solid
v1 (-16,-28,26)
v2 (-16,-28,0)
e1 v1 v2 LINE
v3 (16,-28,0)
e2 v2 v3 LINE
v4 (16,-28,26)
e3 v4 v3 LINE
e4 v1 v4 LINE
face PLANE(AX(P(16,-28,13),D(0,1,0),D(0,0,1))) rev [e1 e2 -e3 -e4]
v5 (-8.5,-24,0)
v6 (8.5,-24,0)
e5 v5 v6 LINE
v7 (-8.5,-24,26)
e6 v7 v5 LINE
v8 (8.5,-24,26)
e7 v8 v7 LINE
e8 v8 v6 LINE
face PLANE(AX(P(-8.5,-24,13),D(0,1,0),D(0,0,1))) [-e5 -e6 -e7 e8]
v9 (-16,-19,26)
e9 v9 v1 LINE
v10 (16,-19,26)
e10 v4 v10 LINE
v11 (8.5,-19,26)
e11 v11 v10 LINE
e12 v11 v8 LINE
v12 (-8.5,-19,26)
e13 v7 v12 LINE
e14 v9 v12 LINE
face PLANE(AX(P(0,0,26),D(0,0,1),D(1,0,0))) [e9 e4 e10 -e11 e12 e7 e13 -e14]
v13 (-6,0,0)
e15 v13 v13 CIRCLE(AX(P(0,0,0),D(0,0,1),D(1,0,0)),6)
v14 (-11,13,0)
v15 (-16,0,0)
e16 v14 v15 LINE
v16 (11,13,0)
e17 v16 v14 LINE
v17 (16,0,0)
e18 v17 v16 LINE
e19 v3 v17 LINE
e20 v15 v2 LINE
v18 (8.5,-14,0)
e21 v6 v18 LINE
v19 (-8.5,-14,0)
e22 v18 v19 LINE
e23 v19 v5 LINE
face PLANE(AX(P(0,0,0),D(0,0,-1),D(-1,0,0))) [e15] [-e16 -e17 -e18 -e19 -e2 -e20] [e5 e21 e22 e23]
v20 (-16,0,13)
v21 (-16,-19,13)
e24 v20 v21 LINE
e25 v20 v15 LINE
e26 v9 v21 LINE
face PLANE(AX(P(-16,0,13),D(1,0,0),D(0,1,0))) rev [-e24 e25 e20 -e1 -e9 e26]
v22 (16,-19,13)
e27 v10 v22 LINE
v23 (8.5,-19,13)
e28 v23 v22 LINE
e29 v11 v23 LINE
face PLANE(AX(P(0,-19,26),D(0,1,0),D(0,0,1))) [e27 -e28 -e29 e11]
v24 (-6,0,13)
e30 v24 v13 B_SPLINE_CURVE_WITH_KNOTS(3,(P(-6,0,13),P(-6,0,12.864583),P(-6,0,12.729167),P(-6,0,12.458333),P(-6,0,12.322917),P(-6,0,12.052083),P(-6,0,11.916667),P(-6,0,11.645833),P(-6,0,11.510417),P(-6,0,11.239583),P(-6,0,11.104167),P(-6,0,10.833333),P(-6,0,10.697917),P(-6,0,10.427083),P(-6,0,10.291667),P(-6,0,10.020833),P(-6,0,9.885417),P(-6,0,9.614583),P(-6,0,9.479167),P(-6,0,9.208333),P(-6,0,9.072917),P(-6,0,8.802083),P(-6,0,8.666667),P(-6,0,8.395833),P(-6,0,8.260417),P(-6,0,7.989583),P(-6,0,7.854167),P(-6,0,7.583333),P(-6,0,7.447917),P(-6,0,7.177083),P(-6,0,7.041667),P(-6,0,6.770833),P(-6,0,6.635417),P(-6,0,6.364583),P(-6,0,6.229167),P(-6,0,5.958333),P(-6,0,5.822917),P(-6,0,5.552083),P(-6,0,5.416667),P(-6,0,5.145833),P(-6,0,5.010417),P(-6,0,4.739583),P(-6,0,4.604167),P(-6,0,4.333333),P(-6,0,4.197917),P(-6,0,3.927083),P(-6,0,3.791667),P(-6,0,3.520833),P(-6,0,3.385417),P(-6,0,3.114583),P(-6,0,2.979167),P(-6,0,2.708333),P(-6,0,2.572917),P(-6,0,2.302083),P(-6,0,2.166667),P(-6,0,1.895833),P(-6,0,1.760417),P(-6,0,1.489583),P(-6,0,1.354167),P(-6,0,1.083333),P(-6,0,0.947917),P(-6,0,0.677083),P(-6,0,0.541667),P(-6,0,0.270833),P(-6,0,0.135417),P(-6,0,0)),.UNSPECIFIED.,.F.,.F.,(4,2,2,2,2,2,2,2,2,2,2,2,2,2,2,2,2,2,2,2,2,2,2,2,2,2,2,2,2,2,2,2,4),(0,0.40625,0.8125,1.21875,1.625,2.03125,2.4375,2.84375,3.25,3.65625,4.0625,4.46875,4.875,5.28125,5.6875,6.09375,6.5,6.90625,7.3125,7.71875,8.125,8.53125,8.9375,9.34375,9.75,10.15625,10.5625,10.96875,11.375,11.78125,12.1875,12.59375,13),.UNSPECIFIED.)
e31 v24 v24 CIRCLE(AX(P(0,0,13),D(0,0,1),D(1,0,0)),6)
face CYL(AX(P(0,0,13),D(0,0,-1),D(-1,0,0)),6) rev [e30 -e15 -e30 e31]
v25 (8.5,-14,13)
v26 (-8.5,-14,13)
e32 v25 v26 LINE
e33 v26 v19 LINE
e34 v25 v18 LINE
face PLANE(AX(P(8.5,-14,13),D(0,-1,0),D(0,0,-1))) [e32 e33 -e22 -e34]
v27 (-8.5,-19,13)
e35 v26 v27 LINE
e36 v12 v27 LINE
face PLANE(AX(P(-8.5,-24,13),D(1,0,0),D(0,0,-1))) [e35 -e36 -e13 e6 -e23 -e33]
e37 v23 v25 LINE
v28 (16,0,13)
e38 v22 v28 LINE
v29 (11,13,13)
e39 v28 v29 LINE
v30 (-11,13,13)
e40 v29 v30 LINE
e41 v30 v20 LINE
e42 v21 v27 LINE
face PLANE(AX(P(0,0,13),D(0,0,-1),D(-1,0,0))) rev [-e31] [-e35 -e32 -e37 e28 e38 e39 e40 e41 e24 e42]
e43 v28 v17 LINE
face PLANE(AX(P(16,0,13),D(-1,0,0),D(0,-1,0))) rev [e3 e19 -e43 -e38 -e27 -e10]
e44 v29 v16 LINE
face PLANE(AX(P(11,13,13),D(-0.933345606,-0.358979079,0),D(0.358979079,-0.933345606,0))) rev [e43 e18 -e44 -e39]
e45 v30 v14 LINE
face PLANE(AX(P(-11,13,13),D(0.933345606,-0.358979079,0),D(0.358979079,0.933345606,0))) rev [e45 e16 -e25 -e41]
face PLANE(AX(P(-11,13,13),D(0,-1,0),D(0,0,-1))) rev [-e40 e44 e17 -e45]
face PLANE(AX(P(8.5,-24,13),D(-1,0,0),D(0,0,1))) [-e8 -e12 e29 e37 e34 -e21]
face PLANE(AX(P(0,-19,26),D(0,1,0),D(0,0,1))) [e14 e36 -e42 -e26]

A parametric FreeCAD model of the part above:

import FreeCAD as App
import Part
import Sketcher
from FreeCAD import Vector

doc = App.newDocument("Part")
body = doc.addObject("PartDesign::Body", "Body")

# Sketch on XY plane
sketch1 = doc.addObject("Sketcher::SketchObject", "Sketch")
body.addObject(sketch1)
sketch1.AttachmentSupport = (doc.XY_Plane, [""])
sketch1.MapMode = "FlatFace"
sketch1.addGeometry([
    Part.LineSegment(Vector(11, 13, 0), Vector(-11, 13, 0)),  # 0
    Part.LineSegment(Vector(-11, 13, 0), Vector(-16, 0, 0)),  # 1
    Part.LineSegment(Vector(-16, 0, 0), Vector(-16, -28, 0)),  # 2
    Part.LineSegment(Vector(-16, -28, 0), Vector(16, -28, 0)),  # 3
    Part.LineSegment(Vector(16, -28, 0), Vector(16, 0, 0)),  # 4
    Part.LineSegment(Vector(16, 0, 0), Vector(11, 13, 0)),  # 5
    Part.LineSegment(Vector(-8, -24, 0), Vector(-8, -14, 0)),  # 6
    Part.LineSegment(Vector(-8, -14, 0), Vector(8, -14, 0)),  # 7
    Part.LineSegment(Vector(8, -14, 0), Vector(8, -24, 0)),  # 8
    Part.LineSegment(Vector(8, -24, 0), Vector(-8, -24, 0)),  # 9
    Part.Circle(Vector(0, 0, 0), Vector(0, 0, 1), 6),  # 10
], False)
sketch1.addConstraint([
    Sketcher.Constraint("Coincident", 0, 2, 1, 1),
    Sketcher.Constraint("Coincident", 1, 2, 2, 1),
    Sketcher.Constraint("Coincident", 2, 2, 3, 1),
    Sketcher.Constraint("Coincident", 3, 2, 4, 1),
    Sketcher.Constraint("Coincident", 4, 2, 5, 1),
    Sketcher.Constraint("Coincident", 5, 2, 0, 1),
    Sketcher.Constraint("Coincident", 6, 2, 7, 1),
    Sketcher.Constraint("Coincident", 7, 2, 8, 1),
    Sketcher.Constraint("Coincident", 8, 2, 9, 1),
    Sketcher.Constraint("Coincident", 9, 2, 6, 1),
    Sketcher.Constraint("Horizontal", 0),
    Sketcher.Constraint("Vertical", 2),
    Sketcher.Constraint("Horizontal", 3),
    Sketcher.Constraint("Vertical", 4),
    Sketcher.Constraint("Vertical", 6),
    Sketcher.Constraint("Horizontal", 7),
    Sketcher.Constraint("Vertical", 8),
    Sketcher.Constraint("Horizontal", 9),
    Sketcher.Constraint("Coincident", 10, 3, -1, 1),
    Sketcher.Constraint("Symmetric", 1, 2, 4, 2, -1, 1),
    Sketcher.Constraint("PointOnObject", 1, 2, -1),
    Sketcher.Constraint("Equal", 1, 5),
    Sketcher.Constraint("Diameter", 10, 12.0),
    Sketcher.Constraint("DistanceX", 0, 2, 0, 1, 22.0),
    Sketcher.Constraint("DistanceX", 3, 1, 3, 2, 32.0),
    Sketcher.Constraint("DistanceX", 7, 1, 7, 2, 17.0),
    Sketcher.Constraint("DistanceY", 2, 2, 2, 1, 28.0),
    Sketcher.Constraint("DistanceY", 6, 1, 6, 2, 10.0),
    Sketcher.Constraint("DistanceY", -1, 1, 0, 2, 13.0),
    Sketcher.Constraint("DistanceY", 6, 2, -1, 1, 14.0),
    Sketcher.Constraint("DistanceX", 6, 2, -1, 1, 8.5),
])
pad1 = doc.addObject("PartDesign::Pad", "Pad")
body.addObject(pad1)
pad1.Profile = sketch1
pad1.Length = 13

# Sketch on XY plane
sketch2 = doc.addObject("Sketcher::SketchObject", "Sketch001")
body.addObject(sketch2)
sketch2.AttachmentSupport = (doc.XY_Plane, [""])
sketch2.MapMode = "FlatFace"
sketch2.AttachmentOffset = App.Placement(Vector(0, 0, 13), App.Rotation())
sketch2.addGeometry([
    Part.LineSegment(Vector(-8, -19, 0), Vector(-16, -19, 0)),  # 0
    Part.LineSegment(Vector(-16, -19, 0), Vector(-16, -28, 0)),  # 1
    Part.LineSegment(Vector(-16, -28, 0), Vector(16, -28, 0)),  # 2
    Part.LineSegment(Vector(16, -28, 0), Vector(16, -19, 0)),  # 3
    Part.LineSegment(Vector(16, -19, 0), Vector(8, -19, 0)),  # 4
    Part.LineSegment(Vector(8, -19, 0), Vector(8, -24, 0)),  # 5
    Part.LineSegment(Vector(8, -24, 0), Vector(-8, -24, 0)),  # 6
    Part.LineSegment(Vector(-8, -24, 0), Vector(-8, -19, 0)),  # 7
], False)
sketch2.addConstraint([
    Sketcher.Constraint("Coincident", 0, 2, 1, 1),
    Sketcher.Constraint("Coincident", 1, 2, 2, 1),
    Sketcher.Constraint("Coincident", 2, 2, 3, 1),
    Sketcher.Constraint("Coincident", 3, 2, 4, 1),
    Sketcher.Constraint("Coincident", 4, 2, 5, 1),
    Sketcher.Constraint("Coincident", 5, 2, 6, 1),
    Sketcher.Constraint("Coincident", 6, 2, 7, 1),
    Sketcher.Constraint("Coincident", 7, 2, 0, 1),
    Sketcher.Constraint("Horizontal", 0),
    Sketcher.Constraint("Vertical", 1),
    Sketcher.Constraint("Horizontal", 2),
    Sketcher.Constraint("Vertical", 3),
    Sketcher.Constraint("Horizontal", 4),
    Sketcher.Constraint("Vertical", 5),
    Sketcher.Constraint("Horizontal", 6),
    Sketcher.Constraint("Vertical", 7),
    Sketcher.Constraint("Symmetric", 0, 2, 3, 2, -2),
    Sketcher.Constraint("Equal", 0, 4),
    Sketcher.Constraint("DistanceX", 2, 1, 2, 2, 32.0),
    Sketcher.Constraint("DistanceX", 6, 2, 6, 1, 17.0),
    Sketcher.Constraint("DistanceY", 1, 2, 1, 1, 9.0),
    Sketcher.Constraint("DistanceY", 5, 2, 5, 1, 5.0),
    Sketcher.Constraint("DistanceY", 0, 2, -1, 1, 19.0),
])
pad2 = doc.addObject("PartDesign::Pad", "Pad001")
body.addObject(pad2)
pad2.Profile = sketch2
pad2.Length = 13

doc.recompute()
